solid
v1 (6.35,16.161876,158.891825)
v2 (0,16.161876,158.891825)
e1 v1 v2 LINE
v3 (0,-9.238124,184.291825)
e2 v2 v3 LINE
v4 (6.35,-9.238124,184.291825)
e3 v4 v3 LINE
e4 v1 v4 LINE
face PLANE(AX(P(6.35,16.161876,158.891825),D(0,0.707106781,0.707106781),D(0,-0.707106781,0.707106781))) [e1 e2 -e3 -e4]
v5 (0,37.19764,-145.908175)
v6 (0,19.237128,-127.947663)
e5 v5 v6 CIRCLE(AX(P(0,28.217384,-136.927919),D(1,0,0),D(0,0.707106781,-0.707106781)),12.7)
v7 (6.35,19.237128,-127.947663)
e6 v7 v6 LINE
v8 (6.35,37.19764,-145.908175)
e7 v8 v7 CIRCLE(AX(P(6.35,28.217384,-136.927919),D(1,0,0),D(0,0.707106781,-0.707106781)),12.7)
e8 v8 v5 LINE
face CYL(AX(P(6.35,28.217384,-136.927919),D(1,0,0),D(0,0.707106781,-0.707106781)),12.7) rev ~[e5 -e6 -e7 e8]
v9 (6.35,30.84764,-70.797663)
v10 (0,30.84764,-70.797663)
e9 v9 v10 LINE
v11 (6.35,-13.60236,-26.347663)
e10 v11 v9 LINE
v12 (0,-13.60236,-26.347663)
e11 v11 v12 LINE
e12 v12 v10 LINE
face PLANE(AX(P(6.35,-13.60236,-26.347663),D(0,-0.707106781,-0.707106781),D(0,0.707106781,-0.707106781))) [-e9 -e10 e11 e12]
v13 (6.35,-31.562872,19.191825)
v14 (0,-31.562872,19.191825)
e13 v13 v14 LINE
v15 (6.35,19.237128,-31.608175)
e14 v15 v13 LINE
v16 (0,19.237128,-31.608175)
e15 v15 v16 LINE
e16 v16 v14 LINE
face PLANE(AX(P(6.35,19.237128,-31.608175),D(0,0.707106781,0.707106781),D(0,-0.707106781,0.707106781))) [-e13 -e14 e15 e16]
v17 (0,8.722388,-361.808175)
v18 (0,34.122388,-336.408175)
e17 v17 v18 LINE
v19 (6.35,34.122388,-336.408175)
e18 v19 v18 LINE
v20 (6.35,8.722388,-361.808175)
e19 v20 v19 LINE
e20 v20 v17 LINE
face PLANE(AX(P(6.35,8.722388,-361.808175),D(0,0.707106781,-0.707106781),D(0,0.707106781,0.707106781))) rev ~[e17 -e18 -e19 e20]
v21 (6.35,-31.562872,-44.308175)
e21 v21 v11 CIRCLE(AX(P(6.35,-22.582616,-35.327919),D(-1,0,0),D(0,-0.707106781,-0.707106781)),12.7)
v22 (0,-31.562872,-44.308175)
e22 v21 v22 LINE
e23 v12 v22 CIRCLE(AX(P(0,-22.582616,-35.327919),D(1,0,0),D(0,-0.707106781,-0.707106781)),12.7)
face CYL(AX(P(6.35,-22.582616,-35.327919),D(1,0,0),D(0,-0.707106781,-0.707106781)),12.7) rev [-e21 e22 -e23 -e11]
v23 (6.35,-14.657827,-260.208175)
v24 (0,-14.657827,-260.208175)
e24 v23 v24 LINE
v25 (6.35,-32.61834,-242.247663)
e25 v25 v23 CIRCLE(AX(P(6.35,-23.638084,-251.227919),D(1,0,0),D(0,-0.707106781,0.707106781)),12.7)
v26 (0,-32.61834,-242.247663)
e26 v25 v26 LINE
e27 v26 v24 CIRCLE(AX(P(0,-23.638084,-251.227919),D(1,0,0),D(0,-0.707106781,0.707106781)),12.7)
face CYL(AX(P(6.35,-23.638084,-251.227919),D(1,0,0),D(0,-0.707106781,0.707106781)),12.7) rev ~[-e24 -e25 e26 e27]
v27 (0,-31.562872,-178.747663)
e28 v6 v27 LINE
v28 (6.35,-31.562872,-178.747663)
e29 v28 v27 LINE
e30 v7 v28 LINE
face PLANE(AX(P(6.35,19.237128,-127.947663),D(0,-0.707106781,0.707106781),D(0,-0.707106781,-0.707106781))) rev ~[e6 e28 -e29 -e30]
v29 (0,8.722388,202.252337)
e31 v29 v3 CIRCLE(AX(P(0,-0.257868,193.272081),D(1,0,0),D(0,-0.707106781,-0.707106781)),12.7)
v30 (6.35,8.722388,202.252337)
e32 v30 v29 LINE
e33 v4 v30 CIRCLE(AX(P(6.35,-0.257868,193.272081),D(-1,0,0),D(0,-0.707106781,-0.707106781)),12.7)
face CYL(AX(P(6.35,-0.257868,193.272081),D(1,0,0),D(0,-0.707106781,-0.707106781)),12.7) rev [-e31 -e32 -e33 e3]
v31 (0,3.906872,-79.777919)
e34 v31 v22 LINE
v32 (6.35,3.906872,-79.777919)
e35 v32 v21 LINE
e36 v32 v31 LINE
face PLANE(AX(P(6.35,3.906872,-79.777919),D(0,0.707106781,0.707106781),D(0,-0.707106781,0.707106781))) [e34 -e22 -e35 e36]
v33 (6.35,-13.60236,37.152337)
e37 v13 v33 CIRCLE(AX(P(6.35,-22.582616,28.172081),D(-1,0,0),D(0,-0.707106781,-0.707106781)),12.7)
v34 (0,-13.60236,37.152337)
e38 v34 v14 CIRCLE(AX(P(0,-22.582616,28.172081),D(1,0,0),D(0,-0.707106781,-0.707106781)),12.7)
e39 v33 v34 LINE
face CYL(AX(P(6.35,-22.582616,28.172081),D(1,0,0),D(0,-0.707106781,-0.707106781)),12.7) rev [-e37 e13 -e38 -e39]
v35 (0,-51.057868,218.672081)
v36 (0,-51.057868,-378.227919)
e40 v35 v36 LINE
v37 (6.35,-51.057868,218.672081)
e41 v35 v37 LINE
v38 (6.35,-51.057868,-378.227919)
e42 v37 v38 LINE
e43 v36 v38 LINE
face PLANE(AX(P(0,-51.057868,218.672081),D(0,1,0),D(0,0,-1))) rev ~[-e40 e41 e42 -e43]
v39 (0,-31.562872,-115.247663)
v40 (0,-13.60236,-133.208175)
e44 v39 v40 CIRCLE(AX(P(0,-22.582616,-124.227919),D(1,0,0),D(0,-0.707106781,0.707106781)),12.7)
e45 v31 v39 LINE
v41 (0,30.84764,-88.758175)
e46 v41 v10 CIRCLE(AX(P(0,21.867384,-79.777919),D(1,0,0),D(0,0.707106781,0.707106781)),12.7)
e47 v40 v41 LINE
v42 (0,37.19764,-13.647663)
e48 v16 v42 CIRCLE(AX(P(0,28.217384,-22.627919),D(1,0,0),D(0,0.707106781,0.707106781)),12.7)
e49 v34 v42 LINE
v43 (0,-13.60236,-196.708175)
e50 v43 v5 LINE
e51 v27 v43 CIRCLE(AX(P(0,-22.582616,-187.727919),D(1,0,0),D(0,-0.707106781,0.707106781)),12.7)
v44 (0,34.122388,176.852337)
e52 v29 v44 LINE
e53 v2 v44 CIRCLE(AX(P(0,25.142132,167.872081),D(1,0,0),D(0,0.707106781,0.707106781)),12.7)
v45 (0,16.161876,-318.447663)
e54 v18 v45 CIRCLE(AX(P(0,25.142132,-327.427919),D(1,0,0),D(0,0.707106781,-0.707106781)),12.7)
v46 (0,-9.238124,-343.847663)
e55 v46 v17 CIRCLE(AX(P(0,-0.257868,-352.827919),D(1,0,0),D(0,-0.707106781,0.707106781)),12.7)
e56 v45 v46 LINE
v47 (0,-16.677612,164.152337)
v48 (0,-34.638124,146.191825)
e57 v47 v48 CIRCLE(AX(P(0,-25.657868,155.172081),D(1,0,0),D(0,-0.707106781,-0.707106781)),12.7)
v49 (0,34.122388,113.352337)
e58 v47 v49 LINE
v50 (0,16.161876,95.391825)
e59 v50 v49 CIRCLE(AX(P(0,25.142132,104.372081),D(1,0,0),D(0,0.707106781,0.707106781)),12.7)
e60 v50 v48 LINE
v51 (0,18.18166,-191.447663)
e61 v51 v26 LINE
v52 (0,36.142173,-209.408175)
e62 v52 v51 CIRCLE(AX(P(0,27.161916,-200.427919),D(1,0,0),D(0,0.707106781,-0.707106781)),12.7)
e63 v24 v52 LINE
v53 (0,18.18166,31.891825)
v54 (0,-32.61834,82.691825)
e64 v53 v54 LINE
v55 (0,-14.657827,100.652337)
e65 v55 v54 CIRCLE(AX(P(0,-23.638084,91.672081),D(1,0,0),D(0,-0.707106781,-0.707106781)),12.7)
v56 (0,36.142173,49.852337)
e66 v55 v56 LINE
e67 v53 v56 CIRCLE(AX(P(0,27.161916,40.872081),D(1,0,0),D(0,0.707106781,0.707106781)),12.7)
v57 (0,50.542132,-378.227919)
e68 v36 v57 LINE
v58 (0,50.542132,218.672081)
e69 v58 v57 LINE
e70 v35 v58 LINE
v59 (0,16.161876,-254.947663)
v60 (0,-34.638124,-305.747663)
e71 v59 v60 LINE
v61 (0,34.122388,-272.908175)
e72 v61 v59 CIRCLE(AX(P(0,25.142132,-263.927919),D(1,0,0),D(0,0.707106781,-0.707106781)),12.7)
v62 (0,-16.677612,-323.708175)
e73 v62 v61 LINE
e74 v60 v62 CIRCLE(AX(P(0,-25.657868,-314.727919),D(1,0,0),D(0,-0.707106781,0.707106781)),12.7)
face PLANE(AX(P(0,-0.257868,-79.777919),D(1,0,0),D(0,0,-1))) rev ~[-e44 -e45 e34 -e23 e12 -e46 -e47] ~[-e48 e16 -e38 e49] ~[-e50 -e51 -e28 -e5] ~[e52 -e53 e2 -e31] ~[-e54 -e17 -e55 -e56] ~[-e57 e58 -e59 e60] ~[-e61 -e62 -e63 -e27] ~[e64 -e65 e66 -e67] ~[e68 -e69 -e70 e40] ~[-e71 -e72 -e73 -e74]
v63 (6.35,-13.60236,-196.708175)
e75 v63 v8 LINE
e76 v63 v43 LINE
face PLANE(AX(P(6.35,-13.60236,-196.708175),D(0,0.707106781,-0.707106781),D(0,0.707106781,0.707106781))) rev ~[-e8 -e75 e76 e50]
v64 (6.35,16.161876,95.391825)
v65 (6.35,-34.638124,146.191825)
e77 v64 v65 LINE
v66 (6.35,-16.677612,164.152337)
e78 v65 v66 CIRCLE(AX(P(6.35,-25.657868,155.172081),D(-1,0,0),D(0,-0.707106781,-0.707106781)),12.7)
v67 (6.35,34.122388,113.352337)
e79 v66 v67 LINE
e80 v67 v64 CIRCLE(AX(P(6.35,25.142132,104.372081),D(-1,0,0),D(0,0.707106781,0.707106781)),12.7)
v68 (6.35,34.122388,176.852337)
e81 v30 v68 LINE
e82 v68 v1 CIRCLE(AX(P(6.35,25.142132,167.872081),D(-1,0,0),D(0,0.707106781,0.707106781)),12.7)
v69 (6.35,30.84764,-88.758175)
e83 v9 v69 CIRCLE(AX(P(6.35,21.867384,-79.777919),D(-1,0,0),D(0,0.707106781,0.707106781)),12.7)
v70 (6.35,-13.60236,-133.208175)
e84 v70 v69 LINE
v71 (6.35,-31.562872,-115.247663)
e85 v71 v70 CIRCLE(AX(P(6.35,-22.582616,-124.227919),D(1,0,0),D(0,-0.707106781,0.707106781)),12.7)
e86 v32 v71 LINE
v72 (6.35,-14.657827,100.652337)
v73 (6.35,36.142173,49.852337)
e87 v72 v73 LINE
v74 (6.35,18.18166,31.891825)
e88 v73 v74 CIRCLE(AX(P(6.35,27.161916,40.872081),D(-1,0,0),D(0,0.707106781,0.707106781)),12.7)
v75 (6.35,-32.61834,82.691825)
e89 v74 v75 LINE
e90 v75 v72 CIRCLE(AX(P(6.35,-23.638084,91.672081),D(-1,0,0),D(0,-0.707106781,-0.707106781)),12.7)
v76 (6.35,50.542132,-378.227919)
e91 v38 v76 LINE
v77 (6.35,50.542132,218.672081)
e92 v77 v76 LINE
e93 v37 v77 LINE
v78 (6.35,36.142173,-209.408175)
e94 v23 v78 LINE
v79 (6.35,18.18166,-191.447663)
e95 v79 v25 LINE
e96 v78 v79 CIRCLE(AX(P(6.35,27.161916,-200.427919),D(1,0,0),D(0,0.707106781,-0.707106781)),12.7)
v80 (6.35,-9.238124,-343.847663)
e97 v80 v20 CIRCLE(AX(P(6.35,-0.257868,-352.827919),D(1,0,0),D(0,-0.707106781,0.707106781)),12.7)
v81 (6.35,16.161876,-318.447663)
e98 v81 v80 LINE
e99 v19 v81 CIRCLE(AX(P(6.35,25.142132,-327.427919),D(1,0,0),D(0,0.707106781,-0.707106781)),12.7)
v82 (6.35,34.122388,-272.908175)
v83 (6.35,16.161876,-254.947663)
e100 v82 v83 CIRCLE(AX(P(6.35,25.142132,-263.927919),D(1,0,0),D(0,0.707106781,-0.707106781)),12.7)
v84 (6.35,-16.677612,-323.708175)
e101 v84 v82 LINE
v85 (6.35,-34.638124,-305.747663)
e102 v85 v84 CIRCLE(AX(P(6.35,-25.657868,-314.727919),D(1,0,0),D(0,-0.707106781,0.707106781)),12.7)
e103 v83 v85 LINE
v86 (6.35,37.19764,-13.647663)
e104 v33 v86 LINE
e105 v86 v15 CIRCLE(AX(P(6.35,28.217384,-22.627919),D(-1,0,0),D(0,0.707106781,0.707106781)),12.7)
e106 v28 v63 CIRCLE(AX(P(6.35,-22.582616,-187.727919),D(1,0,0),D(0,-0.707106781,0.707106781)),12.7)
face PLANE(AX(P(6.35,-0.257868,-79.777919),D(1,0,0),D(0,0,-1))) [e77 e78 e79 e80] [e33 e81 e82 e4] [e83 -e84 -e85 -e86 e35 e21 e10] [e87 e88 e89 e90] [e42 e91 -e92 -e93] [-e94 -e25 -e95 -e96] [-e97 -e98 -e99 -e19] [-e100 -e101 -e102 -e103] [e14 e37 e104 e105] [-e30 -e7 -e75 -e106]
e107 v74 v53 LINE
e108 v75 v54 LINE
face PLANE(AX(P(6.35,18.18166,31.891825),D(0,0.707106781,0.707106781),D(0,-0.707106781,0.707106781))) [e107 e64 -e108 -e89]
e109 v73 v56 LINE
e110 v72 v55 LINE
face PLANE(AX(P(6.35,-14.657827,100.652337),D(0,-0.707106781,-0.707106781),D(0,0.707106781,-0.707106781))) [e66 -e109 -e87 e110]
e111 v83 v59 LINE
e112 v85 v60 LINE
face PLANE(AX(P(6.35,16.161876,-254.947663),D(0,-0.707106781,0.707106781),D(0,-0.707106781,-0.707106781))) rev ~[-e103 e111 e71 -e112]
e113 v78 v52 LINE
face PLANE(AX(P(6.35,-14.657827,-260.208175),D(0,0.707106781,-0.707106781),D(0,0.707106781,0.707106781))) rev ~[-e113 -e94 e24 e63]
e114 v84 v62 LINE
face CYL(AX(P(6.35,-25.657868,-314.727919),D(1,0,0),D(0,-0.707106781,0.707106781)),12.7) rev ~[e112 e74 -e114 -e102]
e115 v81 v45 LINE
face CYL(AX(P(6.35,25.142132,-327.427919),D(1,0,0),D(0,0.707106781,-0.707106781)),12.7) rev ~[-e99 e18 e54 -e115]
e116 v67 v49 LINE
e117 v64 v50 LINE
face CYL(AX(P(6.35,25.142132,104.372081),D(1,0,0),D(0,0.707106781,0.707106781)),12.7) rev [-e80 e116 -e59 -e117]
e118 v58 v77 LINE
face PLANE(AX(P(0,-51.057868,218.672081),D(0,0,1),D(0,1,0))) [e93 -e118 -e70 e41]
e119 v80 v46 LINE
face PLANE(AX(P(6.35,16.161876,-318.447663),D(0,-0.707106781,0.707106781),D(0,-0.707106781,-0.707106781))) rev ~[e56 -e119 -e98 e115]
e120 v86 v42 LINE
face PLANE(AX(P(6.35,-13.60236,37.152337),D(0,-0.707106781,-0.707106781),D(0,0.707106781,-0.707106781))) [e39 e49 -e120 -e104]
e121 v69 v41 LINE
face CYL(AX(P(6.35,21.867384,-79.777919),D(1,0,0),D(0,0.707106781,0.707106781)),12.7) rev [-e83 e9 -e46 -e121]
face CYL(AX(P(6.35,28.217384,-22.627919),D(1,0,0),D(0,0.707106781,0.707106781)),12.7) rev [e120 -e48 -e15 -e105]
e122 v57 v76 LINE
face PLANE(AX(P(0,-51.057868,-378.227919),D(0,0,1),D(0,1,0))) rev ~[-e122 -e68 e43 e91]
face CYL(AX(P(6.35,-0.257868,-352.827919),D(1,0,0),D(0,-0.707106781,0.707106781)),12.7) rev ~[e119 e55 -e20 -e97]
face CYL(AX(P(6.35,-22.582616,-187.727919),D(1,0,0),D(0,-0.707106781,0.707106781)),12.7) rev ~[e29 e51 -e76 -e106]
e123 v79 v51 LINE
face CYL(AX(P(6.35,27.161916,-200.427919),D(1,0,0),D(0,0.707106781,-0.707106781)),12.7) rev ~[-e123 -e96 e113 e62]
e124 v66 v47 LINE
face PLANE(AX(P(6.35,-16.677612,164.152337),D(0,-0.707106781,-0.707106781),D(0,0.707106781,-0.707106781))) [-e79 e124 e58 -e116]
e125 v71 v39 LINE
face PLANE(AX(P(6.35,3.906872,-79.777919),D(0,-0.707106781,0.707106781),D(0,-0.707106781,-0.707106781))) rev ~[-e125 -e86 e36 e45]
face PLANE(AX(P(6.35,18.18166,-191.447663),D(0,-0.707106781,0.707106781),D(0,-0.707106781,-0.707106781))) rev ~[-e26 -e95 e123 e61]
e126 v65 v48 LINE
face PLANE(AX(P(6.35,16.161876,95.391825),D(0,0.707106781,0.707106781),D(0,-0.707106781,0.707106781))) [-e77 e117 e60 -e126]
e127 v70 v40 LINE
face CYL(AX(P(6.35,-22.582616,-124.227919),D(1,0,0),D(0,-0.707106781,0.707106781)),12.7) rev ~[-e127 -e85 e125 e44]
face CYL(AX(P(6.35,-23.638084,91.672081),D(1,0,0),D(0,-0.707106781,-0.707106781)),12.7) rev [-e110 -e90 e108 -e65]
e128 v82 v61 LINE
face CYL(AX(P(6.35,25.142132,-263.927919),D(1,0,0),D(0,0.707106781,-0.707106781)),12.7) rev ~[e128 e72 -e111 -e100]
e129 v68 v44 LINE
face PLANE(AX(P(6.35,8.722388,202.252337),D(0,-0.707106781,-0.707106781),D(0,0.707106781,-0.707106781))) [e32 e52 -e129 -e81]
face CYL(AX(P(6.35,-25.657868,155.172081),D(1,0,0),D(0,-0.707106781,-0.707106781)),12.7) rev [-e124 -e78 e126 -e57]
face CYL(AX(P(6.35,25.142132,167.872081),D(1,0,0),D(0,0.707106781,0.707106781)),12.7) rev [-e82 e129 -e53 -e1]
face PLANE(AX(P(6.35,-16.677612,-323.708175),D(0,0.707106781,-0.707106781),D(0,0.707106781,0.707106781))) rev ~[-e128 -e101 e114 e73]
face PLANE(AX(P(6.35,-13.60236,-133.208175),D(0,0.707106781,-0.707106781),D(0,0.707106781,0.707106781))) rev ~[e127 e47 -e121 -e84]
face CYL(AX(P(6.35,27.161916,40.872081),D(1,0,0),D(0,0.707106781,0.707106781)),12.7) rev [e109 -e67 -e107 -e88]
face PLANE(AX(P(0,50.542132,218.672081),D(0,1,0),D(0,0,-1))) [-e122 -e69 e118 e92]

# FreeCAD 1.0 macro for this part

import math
import FreeCAD as App
import Part
import Sketcher
Q = App.Units.Quantity

doc = App.newDocument("Part")
body = doc.addObject("PartDesign::Body", "Body")

sketch1 = body.newObject("Sketcher::SketchObject", "Sketch")
sketch1.AttachmentSupport = (doc.getObject("YZ_Plane"), [""])
sketch1.MapMode = "FlatFace"
sketch1.addGeometry([
    Part.LineSegment(App.Vector(51, 219, 0), App.Vector(-51, 219, 0)),
    Part.LineSegment(App.Vector(-51, 219, 0), App.Vector(-51, -378, 0)),
    Part.LineSegment(App.Vector(-51, -378, 0), App.Vector(51, -378, 0)),
    Part.LineSegment(App.Vector(51, -378, 0), App.Vector(51, 219, 0)),
], False)
sketch1.addConstraint([
    Sketcher.Constraint("Coincident", 0, 2, 1, 1),
    Sketcher.Constraint("Coincident", 1, 2, 2, 1),
    Sketcher.Constraint("Coincident", 2, 2, 3, 1),
    Sketcher.Constraint("Coincident", 3, 2, 0, 1),
    Sketcher.Constraint("Horizontal", 0),
    Sketcher.Constraint("Vertical", 1),
    Sketcher.Constraint("Horizontal", 2),
    Sketcher.Constraint("Vertical", 3),
    Sketcher.Constraint("DistanceX", 0, 2, 0, 1, Q("4 in")),
    Sketcher.Constraint("DistanceY", 1, 2, 1, 1, Q("23.5 in")),
    Sketcher.Constraint("DistanceX", 0, 2, -1, 1, Q("51.057868 mm")),
    Sketcher.Constraint("DistanceY", -1, 1, 0, 2, Q("218.672081 mm")),
])
pad1 = body.newObject("PartDesign::Pad", "Pad")
pad1.Profile = sketch1
pad1.Length = Q("0.25 in")

sketch2 = body.newObject("Sketcher::SketchObject", "Sketch001")
sketch2.AttachmentSupport = (doc.getObject("YZ_Plane"), [""])
sketch2.MapMode = "FlatFace"
sketch2.AttachmentOffset = App.Placement(App.Vector(0, 0, 0.25 * 25.4), App.Rotation())
sketch2.addGeometry([
    Part.LineSegment(App.Vector(-9, 184, 0), App.Vector(16, 159, 0)),
    Part.ArcOfCircle(Part.Circle(App.Vector(25, 168, 0), App.Vector(0, 0, 1), 13), math.radians(-135), math.radians(45)),
    Part.LineSegment(App.Vector(34, 177, 0), App.Vector(9, 202, 0)),
    Part.ArcOfCircle(Part.Circle(App.Vector(0, 193, 0), App.Vector(0, 0, 1), 13), math.radians(45), math.radians(225)),
    Part.LineSegment(App.Vector(-35, 146, 0), App.Vector(16, 95, 0)),
    Part.ArcOfCircle(Part.Circle(App.Vector(25, 104, 0), App.Vector(0, 0, 1), 13), math.radians(-135), math.radians(45)),
    Part.LineSegment(App.Vector(34, 113, 0), App.Vector(-17, 164, 0)),
    Part.ArcOfCircle(Part.Circle(App.Vector(-26, 155, 0), App.Vector(0, 0, 1), 13), math.radians(45), math.radians(225)),
    Part.LineSegment(App.Vector(36, 50, 0), App.Vector(-15, 101, 0)),
    Part.ArcOfCircle(Part.Circle(App.Vector(-24, 92, 0), App.Vector(0, 0, 1), 13), math.radians(45), math.radians(225)),
    Part.LineSegment(App.Vector(-33, 83, 0), App.Vector(18, 32, 0)),
    Part.ArcOfCircle(Part.Circle(App.Vector(27, 41, 0), App.Vector(0, 0, 1), 13), math.radians(-135), math.radians(45)),
    Part.LineSegment(App.Vector(37, -14, 0), App.Vector(-14, 37, 0)),
    Part.ArcOfCircle(Part.Circle(App.Vector(-23, 28, 0), App.Vector(0, 0, 1), 13), math.radians(45), math.radians(225)),
    Part.LineSegment(App.Vector(-32, 19, 0), App.Vector(19, -32, 0)),
    Part.ArcOfCircle(Part.Circle(App.Vector(28, -23, 0), App.Vector(0, 0, 1), 13), math.radians(-135), math.radians(45)),
    Part.ArcOfCircle(Part.Circle(App.Vector(-23, -35, 0), App.Vector(0, 0, 1), 13), math.radians(45), math.radians(225)),
    Part.LineSegment(App.Vector(-32, -44, 0), App.Vector(4, -80, 0)),
    Part.LineSegment(App.Vector(4, -80, 0), App.Vector(-32, -115, 0)),
    Part.ArcOfCircle(Part.Circle(App.Vector(-23, -124, 0), App.Vector(0, 0, 1), 13), math.radians(135), math.radians(315)),
    Part.LineSegment(App.Vector(-14, -133, 0), App.Vector(31, -89, 0)),
    Part.ArcOfCircle(Part.Circle(App.Vector(22, -80, 0), App.Vector(0, 0, 1), 13), math.radians(-45), math.radians(45)),
    Part.LineSegment(App.Vector(31, -71, 0), App.Vector(-14, -26, 0)),
    Part.LineSegment(App.Vector(-14, -197, 0), App.Vector(37, -146, 0)),
    Part.ArcOfCircle(Part.Circle(App.Vector(28, -137, 0), App.Vector(0, 0, 1), 13), math.radians(-45), math.radians(135)),
    Part.LineSegment(App.Vector(19, -128, 0), App.Vector(-32, -179, 0)),
    Part.ArcOfCircle(Part.Circle(App.Vector(-23, -188, 0), App.Vector(0, 0, 1), 13), math.radians(135), math.radians(315)),
    Part.LineSegment(App.Vector(-15, -260, 0), App.Vector(36, -209, 0)),
    Part.ArcOfCircle(Part.Circle(App.Vector(27, -200, 0), App.Vector(0, 0, 1), 13), math.radians(-45), math.radians(135)),
    Part.LineSegment(App.Vector(18, -191, 0), App.Vector(-33, -242, 0)),
    Part.ArcOfCircle(Part.Circle(App.Vector(-24, -251, 0), App.Vector(0, 0, 1), 13), math.radians(135), math.radians(315)),
    Part.LineSegment(App.Vector(16, -255, 0), App.Vector(-35, -306, 0)),
    Part.ArcOfCircle(Part.Circle(App.Vector(-26, -315, 0), App.Vector(0, 0, 1), 13), math.radians(135), math.radians(315)),
    Part.LineSegment(App.Vector(-17, -324, 0), App.Vector(34, -273, 0)),
    Part.ArcOfCircle(Part.Circle(App.Vector(25, -264, 0), App.Vector(0, 0, 1), 13), math.radians(-45), math.radians(135)),
    Part.LineSegment(App.Vector(16, -318, 0), App.Vector(-9, -344, 0)),
    Part.ArcOfCircle(Part.Circle(App.Vector(0, -353, 0), App.Vector(0, 0, 1), 13), math.radians(135), math.radians(315)),
    Part.LineSegment(App.Vector(9, -362, 0), App.Vector(34, -336, 0)),
    Part.ArcOfCircle(Part.Circle(App.Vector(25, -327, 0), App.Vector(0, 0, 1), 13), math.radians(-45), math.radians(135)),
], False)
sketch2.addConstraint([
    Sketcher.Constraint("Tangent", 0, 2, 1, 1),
    Sketcher.Constraint("Tangent", 1, 2, 2, 1),
    Sketcher.Constraint("Tangent", 2, 2, 3, 1),
    Sketcher.Constraint("Tangent", 3, 2, 0, 1),
    Sketcher.Constraint("Tangent", 4, 2, 5, 1),
    Sketcher.Constraint("Tangent", 5, 2, 6, 1),
    Sketcher.Constraint("Tangent", 6, 2, 7, 1),
    Sketcher.Constraint("Tangent", 7, 2, 4, 1),
    Sketcher.Constraint("Tangent", 8, 2, 9, 1),
    Sketcher.Constraint("Tangent", 9, 2, 10, 1),
    Sketcher.Constraint("Tangent", 10, 2, 11, 1),
    Sketcher.Constraint("Tangent", 11, 2, 8, 1),
    Sketcher.Constraint("Tangent", 12, 2, 13, 1),
    Sketcher.Constraint("Tangent", 13, 2, 14, 1),
    Sketcher.Constraint("Tangent", 14, 2, 15, 1),
    Sketcher.Constraint("Tangent", 15, 2, 12, 1),
    Sketcher.Constraint("Tangent", 16, 2, 17, 1),
    Sketcher.Constraint("Coincident", 17, 2, 18, 1),
    Sketcher.Constraint("Tangent", 18, 2, 19, 1),
    Sketcher.Constraint("Tangent", 19, 2, 20, 1),
    Sketcher.Constraint("Tangent", 20, 2, 21, 1),
    Sketcher.Constraint("Tangent", 21, 2, 22, 1),
    Sketcher.Constraint("Tangent", 22, 2, 16, 1),
    Sketcher.Constraint("Tangent", 23, 2, 24, 1),
    Sketcher.Constraint("Tangent", 24, 2, 25, 1),
    Sketcher.Constraint("Tangent", 25, 2, 26, 1),
    Sketcher.Constraint("Tangent", 26, 2, 23, 1),
    Sketcher.Constraint("Tangent", 27, 2, 28, 1),
    Sketcher.Constraint("Tangent", 28, 2, 29, 1),
    Sketcher.Constraint("Tangent", 29, 2, 30, 1),
    Sketcher.Constraint("Tangent", 30, 2, 27, 1),
    Sketcher.Constraint("Tangent", 31, 2, 32, 1),
    Sketcher.Constraint("Tangent", 32, 2, 33, 1),
    Sketcher.Constraint("Tangent", 33, 2, 34, 1),
    Sketcher.Constraint("Tangent", 34, 2, 31, 1),
    Sketcher.Constraint("Tangent", 35, 2, 36, 1),
    Sketcher.Constraint("Tangent", 36, 2, 37, 1),
    Sketcher.Constraint("Tangent", 37, 2, 38, 1),
    Sketcher.Constraint("Tangent", 38, 2, 35, 1),
    Sketcher.Constraint("Equal", 1, 3),
    Sketcher.Constraint("Equal", 3, 5),
    Sketcher.Constraint("Equal", 5, 7),
    Sketcher.Constraint("Equal", 7, 9),
    Sketcher.Constraint("Equal", 9, 11),
    Sketcher.Constraint("Equal", 11, 13),
    Sketcher.Constraint("Equal", 13, 15),
    Sketcher.Constraint("Equal", 15, 16),
    Sketcher.Constraint("Equal", 16, 19),
    Sketcher.Constraint("Equal", 19, 21),
    Sketcher.Constraint("Equal", 21, 24),
    Sketcher.Constraint("Equal", 24, 26),
    Sketcher.Constraint("Equal", 26, 28),
    Sketcher.Constraint("Equal", 28, 30),
    Sketcher.Constraint("Equal", 30, 32),
    Sketcher.Constraint("Equal", 32, 34),
    Sketcher.Constraint("Equal", 34, 36),
    Sketcher.Constraint("Equal", 36, 38),
    Sketcher.Constraint("Parallel", 2, 4),
    Sketcher.Constraint("Parallel", 6, 8),
    Sketcher.Constraint("Parallel", 10, 12),
    Sketcher.Constraint("Parallel", 14, 17),
    Sketcher.Constraint("Perpendicular", 17, 18),
    Sketcher.Constraint("Parallel", 18, 20),
    Sketcher.Constraint("Perpendicular", 20, 22),
    Sketcher.Constraint("Perpendicular", 22, 23),
    Sketcher.Constraint("Parallel", 25, 27),
    Sketcher.Constraint("Parallel", 29, 31),
    Sketcher.Constraint("Parallel", 33, 35),
    Sketcher.Constraint("Horizontal", 21, 3, 17, 2),
    Sketcher.Constraint("Vertical", 1, 3, 5, 3),
    Sketcher.Constraint("Vertical", 13, 3, 16, 3),
    Sketcher.Constraint("Vertical", 16, 3, 19, 3),
    Sketcher.Constraint("Vertical", 15, 3, 24, 3),
    Sketcher.Constraint("Vertical", 19, 3, 26, 3),
    Sketcher.Constraint("Vertical", 11, 3, 28, 3),
    Sketcher.Constraint("Vertical", 9, 3, 30, 3),
    Sketcher.Constraint("Vertical", 7, 3, 32, 3),
    Sketcher.Constraint("Vertical", 5, 3, 34, 3),
    Sketcher.Constraint("Vertical", 3, 3, 36, 3),
    Sketcher.Constraint("Vertical", 34, 3, 38, 3),
    Sketcher.Constraint("Equal", 6, 8),
    Sketcher.Constraint("Equal", 10, 12),
    Sketcher.Constraint("Radius", 1, Q("0.5 in")),
    Sketcher.Constraint("DistanceX", 3, 3, 1, 3, Q("1 in")),
    Sketcher.Constraint("DistanceX", 7, 3, 3, 3, Q("1 in")),
    Sketcher.Constraint("DistanceY", 9, 3, 1, 3, Q("3 in")),
    Sketcher.Constraint("DistanceY", 13, 3, 5, 3, Q("3 in")),
    Sketcher.Constraint("DistanceY", 16, 3, 11, 3, Q("3 in")),
    Sketcher.Constraint("DistanceY", 19, 3, 15, 3, Q("4 in")),
    Sketcher.Constraint("DistanceY", 24, 3, 16, 3, Q("4 in")),
    Sketcher.Constraint("DistanceY", 28, 3, 19, 3, Q("3 in")),
    Sketcher.Constraint("DistanceY", 32, 3, 26, 3, Q("5 in")),
    Sketcher.Constraint("DistanceY", 36, 3, 30, 3, Q("4 in")),
    Sketcher.Constraint("DistanceY", 5, 3, 1, 3, Q("2.5 in")),
    Sketcher.Constraint("DistanceX", -1, 1, 1, 3, Q("25.142132 mm")),
    Sketcher.Constraint("DistanceY", -1, 1, 1, 3, Q("167.872081 mm")),
    Sketcher.Constraint("DistanceX", 9, 2, -1, 1, Q("32.61834 mm")),
    Sketcher.Constraint("DistanceX", 12, 2, -1, 1, Q("13.60236 mm")),
])
pocket1 = body.newObject("PartDesign::Pocket", "Pocket")
pocket1.Profile = sketch2
pocket1.Type = "ThroughAll"

doc.recompute()
